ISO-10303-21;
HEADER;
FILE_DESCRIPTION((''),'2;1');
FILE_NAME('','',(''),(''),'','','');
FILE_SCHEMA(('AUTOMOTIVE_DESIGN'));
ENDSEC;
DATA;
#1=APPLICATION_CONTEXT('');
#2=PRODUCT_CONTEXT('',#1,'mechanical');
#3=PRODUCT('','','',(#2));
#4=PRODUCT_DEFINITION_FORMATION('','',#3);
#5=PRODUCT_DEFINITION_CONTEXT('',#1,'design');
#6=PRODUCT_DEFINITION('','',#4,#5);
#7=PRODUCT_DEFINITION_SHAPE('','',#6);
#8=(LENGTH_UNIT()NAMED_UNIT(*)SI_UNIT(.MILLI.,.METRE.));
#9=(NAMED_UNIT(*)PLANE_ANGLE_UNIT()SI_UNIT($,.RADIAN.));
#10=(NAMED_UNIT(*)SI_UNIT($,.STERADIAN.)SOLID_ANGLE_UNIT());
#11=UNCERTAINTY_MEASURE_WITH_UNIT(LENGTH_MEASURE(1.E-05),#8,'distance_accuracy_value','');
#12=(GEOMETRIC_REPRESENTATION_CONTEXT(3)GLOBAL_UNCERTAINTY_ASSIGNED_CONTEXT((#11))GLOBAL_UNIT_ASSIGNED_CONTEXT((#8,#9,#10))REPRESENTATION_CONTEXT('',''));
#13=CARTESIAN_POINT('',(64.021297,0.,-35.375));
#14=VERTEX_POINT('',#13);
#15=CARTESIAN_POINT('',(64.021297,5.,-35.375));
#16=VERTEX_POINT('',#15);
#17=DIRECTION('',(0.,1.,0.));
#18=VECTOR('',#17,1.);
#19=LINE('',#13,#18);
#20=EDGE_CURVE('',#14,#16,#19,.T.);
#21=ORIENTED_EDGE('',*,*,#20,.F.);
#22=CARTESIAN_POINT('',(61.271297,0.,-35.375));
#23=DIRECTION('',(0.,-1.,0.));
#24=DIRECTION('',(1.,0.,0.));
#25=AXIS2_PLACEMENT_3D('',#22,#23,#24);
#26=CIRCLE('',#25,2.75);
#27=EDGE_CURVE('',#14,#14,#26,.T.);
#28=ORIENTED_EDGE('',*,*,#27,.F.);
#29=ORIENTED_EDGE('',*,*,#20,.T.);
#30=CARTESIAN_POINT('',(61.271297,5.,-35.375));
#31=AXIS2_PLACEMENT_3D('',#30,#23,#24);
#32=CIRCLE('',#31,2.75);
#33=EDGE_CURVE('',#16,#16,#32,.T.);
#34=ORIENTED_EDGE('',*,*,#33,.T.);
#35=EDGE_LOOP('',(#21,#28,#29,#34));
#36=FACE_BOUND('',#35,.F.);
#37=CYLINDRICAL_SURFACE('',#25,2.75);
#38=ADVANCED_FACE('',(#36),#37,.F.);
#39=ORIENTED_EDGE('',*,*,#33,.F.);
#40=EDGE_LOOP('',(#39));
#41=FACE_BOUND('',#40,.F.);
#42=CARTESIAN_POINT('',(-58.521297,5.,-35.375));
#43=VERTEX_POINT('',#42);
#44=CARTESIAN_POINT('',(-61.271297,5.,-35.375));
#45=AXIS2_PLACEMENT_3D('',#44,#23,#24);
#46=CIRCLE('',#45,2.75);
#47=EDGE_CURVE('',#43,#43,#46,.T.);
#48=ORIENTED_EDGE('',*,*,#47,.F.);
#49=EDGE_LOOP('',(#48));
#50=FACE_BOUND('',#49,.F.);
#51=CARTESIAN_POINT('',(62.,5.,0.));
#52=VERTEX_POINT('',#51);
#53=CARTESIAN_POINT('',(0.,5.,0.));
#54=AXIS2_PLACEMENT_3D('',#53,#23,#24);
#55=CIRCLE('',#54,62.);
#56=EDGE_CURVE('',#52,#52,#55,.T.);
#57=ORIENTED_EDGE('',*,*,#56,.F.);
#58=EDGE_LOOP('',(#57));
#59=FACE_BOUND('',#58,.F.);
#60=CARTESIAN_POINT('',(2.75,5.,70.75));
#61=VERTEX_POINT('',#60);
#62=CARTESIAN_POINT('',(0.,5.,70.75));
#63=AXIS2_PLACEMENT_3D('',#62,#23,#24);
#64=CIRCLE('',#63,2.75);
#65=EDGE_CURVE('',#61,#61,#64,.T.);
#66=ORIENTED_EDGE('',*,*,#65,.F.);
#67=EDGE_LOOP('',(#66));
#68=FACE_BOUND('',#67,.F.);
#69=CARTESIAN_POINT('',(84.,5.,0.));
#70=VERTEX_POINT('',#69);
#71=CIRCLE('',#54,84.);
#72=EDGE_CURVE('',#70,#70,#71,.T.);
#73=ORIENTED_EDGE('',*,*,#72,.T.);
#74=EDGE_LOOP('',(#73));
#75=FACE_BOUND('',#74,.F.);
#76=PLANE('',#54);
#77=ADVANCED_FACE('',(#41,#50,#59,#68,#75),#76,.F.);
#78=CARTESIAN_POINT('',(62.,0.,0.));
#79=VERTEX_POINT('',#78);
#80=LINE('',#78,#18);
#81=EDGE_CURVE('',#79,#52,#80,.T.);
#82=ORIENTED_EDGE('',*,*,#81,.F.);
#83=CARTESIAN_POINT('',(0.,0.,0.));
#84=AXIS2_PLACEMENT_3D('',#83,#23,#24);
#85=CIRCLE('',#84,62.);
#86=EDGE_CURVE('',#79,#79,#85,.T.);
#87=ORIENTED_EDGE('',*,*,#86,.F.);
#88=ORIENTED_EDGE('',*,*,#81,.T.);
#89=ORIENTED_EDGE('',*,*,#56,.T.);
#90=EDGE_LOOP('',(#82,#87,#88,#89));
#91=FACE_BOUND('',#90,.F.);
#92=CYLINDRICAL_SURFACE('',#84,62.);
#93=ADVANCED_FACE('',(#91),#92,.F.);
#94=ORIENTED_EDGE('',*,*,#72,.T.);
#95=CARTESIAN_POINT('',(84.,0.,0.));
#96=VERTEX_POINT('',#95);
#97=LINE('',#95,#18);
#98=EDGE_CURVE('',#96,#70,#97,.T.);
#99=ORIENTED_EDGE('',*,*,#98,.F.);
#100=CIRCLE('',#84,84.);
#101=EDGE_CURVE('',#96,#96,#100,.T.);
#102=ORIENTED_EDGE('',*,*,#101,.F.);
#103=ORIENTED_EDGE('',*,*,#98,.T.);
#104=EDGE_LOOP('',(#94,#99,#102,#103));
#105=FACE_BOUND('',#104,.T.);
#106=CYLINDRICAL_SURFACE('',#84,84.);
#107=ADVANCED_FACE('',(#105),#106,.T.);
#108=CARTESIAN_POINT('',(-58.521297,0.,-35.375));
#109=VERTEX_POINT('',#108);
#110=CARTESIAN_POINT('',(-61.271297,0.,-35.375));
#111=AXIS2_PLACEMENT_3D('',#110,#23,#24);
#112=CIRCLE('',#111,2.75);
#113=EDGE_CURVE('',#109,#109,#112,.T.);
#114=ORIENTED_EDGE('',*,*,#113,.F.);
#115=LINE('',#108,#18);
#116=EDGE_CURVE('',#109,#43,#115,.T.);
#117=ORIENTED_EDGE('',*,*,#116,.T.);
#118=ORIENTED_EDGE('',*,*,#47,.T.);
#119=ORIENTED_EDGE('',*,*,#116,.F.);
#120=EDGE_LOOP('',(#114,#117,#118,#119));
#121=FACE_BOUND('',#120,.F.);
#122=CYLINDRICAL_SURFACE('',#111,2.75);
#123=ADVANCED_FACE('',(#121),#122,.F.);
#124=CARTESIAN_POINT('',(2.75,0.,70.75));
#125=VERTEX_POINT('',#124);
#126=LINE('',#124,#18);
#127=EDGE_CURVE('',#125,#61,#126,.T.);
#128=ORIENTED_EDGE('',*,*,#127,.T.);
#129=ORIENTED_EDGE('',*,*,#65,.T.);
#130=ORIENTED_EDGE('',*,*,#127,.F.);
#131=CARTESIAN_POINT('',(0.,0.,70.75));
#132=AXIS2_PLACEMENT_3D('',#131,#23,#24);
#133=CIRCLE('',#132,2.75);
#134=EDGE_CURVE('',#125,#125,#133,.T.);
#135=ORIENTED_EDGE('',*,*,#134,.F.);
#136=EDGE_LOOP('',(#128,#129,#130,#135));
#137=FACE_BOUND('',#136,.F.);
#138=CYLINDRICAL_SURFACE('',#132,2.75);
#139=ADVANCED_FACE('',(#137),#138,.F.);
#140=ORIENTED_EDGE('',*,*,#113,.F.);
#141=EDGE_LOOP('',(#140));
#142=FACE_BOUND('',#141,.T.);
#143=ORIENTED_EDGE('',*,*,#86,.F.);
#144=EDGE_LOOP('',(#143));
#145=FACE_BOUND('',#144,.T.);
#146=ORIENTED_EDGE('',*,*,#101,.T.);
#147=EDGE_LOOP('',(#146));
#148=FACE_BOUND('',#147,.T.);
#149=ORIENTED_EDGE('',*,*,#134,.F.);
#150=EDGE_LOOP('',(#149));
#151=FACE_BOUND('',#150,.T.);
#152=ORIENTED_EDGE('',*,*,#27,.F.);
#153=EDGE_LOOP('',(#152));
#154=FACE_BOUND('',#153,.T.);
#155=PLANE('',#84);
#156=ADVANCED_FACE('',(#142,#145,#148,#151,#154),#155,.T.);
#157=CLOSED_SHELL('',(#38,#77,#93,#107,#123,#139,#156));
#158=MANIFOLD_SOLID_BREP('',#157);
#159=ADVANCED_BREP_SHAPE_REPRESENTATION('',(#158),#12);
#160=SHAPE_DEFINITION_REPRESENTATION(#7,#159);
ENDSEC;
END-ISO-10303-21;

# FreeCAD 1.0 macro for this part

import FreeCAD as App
import Part
import Sketcher
Q = App.Units.Quantity

doc = App.newDocument("Part")
body = doc.addObject("PartDesign::Body", "Body")

# Sketch on XZ plane
sketch1 = body.newObject("Sketcher::SketchObject", "Sketch")
sketch1.AttachmentSupport = (doc.getObject("XZ_Plane"), [""])
sketch1.MapMode = "FlatFace"
sketch1.addGeometry([
    Part.Circle(App.Vector(0, 0, 0), App.Vector(0, 0, 1), 84),
    Part.Circle(App.Vector(0, 0, 0), App.Vector(0, 0, 1), 62),
], False)
sketch1.addConstraint([
    Sketcher.Constraint("Coincident", 0, 3, -1, 1),
    Sketcher.Constraint("Coincident", 1, 3, -1, 1),
    Sketcher.Constraint("Diameter", 0, Q("168 mm")),
    Sketcher.Constraint("Diameter", 1, Q("124 mm")),
])
pad1 = body.newObject("PartDesign::Pad", "Pad")
pad1.Profile = sketch1
pad1.Length = 5
pad1.Reversed = True

# Sketch on XZ plane
sketch2 = body.newObject("Sketcher::SketchObject", "Sketch001")
sketch2.AttachmentSupport = (doc.getObject("XZ_Plane"), [""])
sketch2.MapMode = "FlatFace"
sketch2.addGeometry([
    Part.Circle(App.Vector(0, 70.8, 0), App.Vector(0, 0, 1), 2.8),
    Part.Circle(App.Vector(-61.3, -35.4, 0), App.Vector(0, 0, 1), 2.8),
    Part.Circle(App.Vector(61.3, -35.4, 0), App.Vector(0, 0, 1), 2.8),
], False)
sketch2.addConstraint([
    Sketcher.Constraint("Equal", 0, 1),
    Sketcher.Constraint("Equal", 1, 2),
    Sketcher.Constraint("Symmetric", 1, 3, 2, 3, -2),
    Sketcher.Constraint("PointOnObject", 0, 3, -2),
    Sketcher.Constraint("Diameter", 0, Q("5.5 mm")),
    Sketcher.Constraint("DistanceY", -1, 1, 0, 3, Q("70.75 mm")),
    Sketcher.Constraint("DistanceY", 1, 3, -1, 1, Q("35.375 mm")),
    Sketcher.Constraint("DistanceX", 1, 3, -1, 1, Q("61.271297 mm")),
])
pocket1 = body.newObject("PartDesign::Pocket", "Pocket")
pocket1.Profile = sketch2
pocket1.Type = "ThroughAll"

doc.recompute()
